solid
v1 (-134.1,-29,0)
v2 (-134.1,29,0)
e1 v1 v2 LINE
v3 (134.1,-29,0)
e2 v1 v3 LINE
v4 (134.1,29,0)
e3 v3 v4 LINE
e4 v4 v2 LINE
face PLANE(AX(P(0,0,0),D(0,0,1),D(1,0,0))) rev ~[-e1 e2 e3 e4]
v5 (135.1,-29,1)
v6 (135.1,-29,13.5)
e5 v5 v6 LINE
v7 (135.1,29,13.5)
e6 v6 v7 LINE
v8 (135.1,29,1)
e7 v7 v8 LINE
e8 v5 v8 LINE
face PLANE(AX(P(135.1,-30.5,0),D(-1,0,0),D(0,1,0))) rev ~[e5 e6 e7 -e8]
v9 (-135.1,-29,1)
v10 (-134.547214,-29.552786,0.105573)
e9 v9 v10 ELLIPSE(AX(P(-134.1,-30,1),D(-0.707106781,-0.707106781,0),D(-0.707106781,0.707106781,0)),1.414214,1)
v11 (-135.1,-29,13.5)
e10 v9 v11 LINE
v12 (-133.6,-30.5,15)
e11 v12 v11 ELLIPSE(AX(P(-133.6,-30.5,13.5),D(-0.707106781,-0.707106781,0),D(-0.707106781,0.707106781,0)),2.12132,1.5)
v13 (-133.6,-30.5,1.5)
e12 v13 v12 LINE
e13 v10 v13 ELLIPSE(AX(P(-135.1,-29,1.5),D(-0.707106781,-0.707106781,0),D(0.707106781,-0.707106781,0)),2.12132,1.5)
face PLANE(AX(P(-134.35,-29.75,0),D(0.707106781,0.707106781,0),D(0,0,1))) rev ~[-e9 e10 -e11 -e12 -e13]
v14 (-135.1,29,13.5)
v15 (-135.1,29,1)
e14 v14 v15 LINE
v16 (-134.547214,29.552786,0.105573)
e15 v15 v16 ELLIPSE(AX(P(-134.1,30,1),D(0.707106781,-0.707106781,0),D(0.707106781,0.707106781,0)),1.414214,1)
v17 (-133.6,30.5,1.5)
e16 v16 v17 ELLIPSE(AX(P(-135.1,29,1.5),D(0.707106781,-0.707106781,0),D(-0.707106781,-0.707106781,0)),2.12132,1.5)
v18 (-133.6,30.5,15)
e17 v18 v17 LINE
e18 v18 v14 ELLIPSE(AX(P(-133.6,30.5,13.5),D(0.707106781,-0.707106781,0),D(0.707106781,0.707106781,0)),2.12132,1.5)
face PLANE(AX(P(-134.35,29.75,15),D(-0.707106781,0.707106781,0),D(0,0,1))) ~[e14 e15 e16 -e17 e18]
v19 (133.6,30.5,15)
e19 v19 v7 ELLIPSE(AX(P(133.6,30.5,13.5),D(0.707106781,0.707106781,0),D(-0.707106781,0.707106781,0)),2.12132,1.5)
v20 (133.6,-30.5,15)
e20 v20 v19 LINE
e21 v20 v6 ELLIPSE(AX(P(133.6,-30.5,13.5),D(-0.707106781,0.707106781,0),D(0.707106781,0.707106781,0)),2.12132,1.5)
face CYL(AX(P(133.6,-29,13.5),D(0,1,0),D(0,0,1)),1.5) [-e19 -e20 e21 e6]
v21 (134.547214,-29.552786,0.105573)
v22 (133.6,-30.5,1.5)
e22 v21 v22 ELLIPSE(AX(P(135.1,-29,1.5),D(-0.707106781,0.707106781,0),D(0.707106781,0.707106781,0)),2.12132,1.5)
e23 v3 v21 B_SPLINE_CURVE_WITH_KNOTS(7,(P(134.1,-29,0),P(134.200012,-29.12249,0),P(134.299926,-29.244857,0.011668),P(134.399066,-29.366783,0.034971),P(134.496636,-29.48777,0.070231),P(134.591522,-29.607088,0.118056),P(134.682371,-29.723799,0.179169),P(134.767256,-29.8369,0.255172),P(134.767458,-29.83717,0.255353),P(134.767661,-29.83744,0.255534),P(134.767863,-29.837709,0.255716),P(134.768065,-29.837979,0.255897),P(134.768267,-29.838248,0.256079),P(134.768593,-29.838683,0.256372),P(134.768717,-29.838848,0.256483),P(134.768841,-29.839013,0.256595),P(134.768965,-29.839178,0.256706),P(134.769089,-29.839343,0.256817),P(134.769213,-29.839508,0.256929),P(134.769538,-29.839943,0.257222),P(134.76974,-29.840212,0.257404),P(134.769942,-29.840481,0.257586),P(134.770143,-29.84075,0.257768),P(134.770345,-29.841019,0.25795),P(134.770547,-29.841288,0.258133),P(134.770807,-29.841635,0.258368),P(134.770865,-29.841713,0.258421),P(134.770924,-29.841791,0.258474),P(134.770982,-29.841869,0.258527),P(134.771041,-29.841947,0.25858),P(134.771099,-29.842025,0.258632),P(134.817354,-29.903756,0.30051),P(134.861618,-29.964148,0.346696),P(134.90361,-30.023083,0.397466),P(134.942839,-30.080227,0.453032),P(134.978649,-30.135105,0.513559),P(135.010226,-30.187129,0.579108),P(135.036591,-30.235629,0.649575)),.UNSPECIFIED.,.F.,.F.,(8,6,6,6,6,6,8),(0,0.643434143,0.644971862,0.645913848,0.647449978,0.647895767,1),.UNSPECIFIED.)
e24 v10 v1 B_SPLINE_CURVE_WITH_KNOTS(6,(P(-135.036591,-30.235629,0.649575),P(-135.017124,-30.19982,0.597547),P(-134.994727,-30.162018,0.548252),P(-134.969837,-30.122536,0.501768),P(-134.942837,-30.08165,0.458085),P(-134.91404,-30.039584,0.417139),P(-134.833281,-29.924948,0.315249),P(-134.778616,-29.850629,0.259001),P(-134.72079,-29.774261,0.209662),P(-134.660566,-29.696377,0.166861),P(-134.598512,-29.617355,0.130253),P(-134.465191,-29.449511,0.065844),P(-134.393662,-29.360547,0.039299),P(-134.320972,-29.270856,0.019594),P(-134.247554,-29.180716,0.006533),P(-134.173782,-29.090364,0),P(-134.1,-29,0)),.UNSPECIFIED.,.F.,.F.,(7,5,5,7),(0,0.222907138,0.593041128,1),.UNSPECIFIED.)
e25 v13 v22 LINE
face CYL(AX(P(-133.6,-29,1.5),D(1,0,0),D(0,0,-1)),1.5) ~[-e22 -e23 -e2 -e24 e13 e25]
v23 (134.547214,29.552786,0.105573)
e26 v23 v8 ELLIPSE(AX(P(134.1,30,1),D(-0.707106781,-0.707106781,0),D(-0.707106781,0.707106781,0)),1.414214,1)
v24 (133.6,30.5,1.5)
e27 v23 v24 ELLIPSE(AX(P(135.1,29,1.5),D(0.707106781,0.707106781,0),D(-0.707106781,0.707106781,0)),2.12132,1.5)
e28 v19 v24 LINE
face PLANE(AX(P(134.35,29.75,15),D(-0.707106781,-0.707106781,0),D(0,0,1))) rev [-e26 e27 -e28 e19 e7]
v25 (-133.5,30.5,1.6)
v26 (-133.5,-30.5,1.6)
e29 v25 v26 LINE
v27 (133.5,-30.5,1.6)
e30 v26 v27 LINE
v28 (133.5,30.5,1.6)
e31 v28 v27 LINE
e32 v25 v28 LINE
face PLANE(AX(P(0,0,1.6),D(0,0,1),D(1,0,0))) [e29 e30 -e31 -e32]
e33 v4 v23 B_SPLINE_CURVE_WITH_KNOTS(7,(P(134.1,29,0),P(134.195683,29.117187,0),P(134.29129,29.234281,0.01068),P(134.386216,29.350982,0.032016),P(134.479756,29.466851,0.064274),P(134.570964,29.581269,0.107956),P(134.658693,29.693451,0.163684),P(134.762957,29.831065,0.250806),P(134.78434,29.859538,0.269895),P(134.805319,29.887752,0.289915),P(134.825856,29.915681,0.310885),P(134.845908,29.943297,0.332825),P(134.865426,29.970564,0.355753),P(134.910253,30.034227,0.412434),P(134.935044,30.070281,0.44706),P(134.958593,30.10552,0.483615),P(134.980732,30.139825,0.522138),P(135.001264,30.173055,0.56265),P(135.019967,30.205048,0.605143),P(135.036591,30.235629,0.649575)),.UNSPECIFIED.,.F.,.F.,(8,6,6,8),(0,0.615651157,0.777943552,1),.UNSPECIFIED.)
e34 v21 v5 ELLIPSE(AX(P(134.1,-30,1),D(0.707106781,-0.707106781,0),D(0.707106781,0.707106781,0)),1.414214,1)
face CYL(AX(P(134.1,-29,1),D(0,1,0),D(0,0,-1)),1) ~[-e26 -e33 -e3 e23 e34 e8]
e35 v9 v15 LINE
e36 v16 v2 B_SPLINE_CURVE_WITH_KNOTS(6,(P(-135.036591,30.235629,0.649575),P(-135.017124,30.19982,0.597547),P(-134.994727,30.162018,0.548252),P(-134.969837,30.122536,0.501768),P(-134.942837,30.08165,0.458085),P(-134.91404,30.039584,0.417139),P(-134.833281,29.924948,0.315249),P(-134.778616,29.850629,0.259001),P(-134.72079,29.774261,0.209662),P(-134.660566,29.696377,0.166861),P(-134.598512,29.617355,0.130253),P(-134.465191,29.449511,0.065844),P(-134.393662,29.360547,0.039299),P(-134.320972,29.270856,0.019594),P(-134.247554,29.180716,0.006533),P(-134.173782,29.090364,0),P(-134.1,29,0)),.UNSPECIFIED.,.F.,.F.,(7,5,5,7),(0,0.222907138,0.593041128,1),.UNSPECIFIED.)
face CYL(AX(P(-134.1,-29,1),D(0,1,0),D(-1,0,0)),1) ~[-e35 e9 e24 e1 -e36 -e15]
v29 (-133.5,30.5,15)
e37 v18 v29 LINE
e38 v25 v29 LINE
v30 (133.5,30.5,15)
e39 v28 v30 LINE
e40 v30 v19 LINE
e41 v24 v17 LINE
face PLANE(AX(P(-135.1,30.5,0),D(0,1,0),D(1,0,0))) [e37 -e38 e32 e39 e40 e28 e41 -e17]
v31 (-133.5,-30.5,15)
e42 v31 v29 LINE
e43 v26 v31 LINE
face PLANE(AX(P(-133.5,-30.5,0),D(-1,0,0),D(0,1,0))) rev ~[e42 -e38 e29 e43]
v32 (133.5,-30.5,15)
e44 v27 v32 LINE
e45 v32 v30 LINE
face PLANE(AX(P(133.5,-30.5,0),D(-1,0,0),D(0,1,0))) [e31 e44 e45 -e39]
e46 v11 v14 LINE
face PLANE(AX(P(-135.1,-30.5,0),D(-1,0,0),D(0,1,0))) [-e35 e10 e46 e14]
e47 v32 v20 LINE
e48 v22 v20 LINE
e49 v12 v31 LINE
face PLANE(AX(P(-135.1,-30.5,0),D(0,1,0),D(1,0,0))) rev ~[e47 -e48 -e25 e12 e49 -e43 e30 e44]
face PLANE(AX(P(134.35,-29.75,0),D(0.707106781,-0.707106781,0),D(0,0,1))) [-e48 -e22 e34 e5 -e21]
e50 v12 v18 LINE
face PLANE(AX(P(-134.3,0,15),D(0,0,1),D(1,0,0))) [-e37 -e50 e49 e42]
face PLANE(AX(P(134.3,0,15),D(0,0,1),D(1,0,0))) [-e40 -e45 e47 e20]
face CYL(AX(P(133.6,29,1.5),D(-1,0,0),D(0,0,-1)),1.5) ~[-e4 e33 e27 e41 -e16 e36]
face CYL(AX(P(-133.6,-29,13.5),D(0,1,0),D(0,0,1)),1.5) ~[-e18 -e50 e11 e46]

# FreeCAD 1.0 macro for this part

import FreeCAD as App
import Part
import Sketcher

V = App.Vector


def edges_at(feature, points):
    """Names of the edges that pass closest to the given points."""
    edges = feature.Shape.Edges
    near = lambda p: min(range(len(edges)), key=lambda i: edges[i].distToShape(Part.Vertex(*p))[0])
    return sorted({f"Edge{near(p) + 1}" for p in points})


def add_polygon(sketch, points):
    """Adds a closed chain of lines whose ends are joined by coincident constraints."""
    first, n = sketch.GeometryCount, len(points)
    for a, b in zip(points, points[1:] + points[:1]):
        sketch.addGeometry(Part.LineSegment(App.Vector(*a, 0), App.Vector(*b, 0)), False)
    for i in range(n):
        sketch.addConstraint(Sketcher.Constraint("Coincident", first + i, 2, first + (i + 1) % n, 1))

doc = App.newDocument("Part")
body = doc.addObject("PartDesign::Body", "Body")

sketch1 = body.newObject("Sketcher::SketchObject", "Sketch")
sketch1.AttachmentSupport = (doc.getObject("XY_Plane"), [""])
sketch1.MapMode = "FlatFace"
add_polygon(sketch1, [(-135, 30), (-135, -30), (135, -30), (135, 30)])
sketch1.addConstraint(Sketcher.Constraint("Vertical", 0))
sketch1.addConstraint(Sketcher.Constraint("Horizontal", 1))
sketch1.addConstraint(Sketcher.Constraint("Vertical", 2))
sketch1.addConstraint(Sketcher.Constraint("Horizontal", 3))
sketch1.addConstraint(Sketcher.Constraint("Symmetric", 0, 2, 2, 2, -1, 1))
sketch1.addConstraint(Sketcher.Constraint("DistanceY", 0, 2, 0, 1, 61.0))
sketch1.addConstraint(Sketcher.Constraint("DistanceX", 1, 1, 1, 2, 270.2))
pad1 = body.newObject("PartDesign::Pad", "Pad")
pad1.Profile = sketch1
pad1.Length = 1.6

sketch2 = body.newObject("Sketcher::SketchObject", "Sketch001")
sketch2.AttachmentSupport = (doc.getObject("XY_Plane"), [""])
sketch2.MapMode = "FlatFace"
add_polygon(sketch2, [(-135.1, 30.5), (-135.1, -30.5), (-133.5, -30.5), (-133.5, 30.5)])
add_polygon(sketch2, [(133.5, 30.5), (133.5, -30.5), (135.1, -30.5), (135.1, 30.5)])
sketch2.addConstraint(Sketcher.Constraint("Vertical", 0))
sketch2.addConstraint(Sketcher.Constraint("Horizontal", 1))
sketch2.addConstraint(Sketcher.Constraint("Vertical", 2))
sketch2.addConstraint(Sketcher.Constraint("Horizontal", 3))
sketch2.addConstraint(Sketcher.Constraint("Vertical", 4))
sketch2.addConstraint(Sketcher.Constraint("Horizontal", 5))
sketch2.addConstraint(Sketcher.Constraint("Vertical", 6))
sketch2.addConstraint(Sketcher.Constraint("Horizontal", 7))
sketch2.addConstraint(Sketcher.Constraint("Symmetric", 2, 2, 4, 2, -1, 1))
sketch2.addConstraint(Sketcher.Constraint("Symmetric", 0, 2, 6, 2, -1, 1))
sketch2.addConstraint(Sketcher.Constraint("Horizontal", 1, 2, 4, 2))
sketch2.addConstraint(Sketcher.Constraint("DistanceY", 0, 2, 0, 1, 61.0))
sketch2.addConstraint(Sketcher.Constraint("DistanceX", 1, 1, 1, 2, 1.6))
sketch2.addConstraint(Sketcher.Constraint("DistanceX", 1, 2, 4, 2, 267.0))
pad2 = body.newObject("PartDesign::Pad", "Pad001")
pad2.Profile = sketch2
pad2.Length = 15
doc.recompute()

chamfer = body.newObject("PartDesign::Chamfer", "Chamfer")
chamfer.Base = (pad2, edges_at(pad2, [
    (-135.1, 30.5, 7.5),
    (135.1, 30.5, 7.5),
    (135.1, -30.5, 7.5),
    (-135.1, -30.5, 7.5),
]))
chamfer.Size = 1.5
doc.recompute()

fillet = body.newObject("PartDesign::Fillet", "Fillet")
fillet.Base = (chamfer, edges_at(chamfer, [(0, -30.5, 0), (0, 30.5, 0)]))
fillet.Radius = 1.5
doc.recompute()

fillet2 = body.newObject("PartDesign::Fillet", "Fillet001")
fillet2.Base = (fillet, edges_at(fillet, [(-135.1, 0, 15), (135.1, 0, 15)]))
fillet2.Radius = 1.5
doc.recompute()

fillet3 = body.newObject("PartDesign::Fillet", "Fillet002")
fillet3.Base = (fillet2, edges_at(fillet2, [(-135.1, 0, 0), (135.1, 0, 0)]))
fillet3.Radius = 1

doc.recompute()
